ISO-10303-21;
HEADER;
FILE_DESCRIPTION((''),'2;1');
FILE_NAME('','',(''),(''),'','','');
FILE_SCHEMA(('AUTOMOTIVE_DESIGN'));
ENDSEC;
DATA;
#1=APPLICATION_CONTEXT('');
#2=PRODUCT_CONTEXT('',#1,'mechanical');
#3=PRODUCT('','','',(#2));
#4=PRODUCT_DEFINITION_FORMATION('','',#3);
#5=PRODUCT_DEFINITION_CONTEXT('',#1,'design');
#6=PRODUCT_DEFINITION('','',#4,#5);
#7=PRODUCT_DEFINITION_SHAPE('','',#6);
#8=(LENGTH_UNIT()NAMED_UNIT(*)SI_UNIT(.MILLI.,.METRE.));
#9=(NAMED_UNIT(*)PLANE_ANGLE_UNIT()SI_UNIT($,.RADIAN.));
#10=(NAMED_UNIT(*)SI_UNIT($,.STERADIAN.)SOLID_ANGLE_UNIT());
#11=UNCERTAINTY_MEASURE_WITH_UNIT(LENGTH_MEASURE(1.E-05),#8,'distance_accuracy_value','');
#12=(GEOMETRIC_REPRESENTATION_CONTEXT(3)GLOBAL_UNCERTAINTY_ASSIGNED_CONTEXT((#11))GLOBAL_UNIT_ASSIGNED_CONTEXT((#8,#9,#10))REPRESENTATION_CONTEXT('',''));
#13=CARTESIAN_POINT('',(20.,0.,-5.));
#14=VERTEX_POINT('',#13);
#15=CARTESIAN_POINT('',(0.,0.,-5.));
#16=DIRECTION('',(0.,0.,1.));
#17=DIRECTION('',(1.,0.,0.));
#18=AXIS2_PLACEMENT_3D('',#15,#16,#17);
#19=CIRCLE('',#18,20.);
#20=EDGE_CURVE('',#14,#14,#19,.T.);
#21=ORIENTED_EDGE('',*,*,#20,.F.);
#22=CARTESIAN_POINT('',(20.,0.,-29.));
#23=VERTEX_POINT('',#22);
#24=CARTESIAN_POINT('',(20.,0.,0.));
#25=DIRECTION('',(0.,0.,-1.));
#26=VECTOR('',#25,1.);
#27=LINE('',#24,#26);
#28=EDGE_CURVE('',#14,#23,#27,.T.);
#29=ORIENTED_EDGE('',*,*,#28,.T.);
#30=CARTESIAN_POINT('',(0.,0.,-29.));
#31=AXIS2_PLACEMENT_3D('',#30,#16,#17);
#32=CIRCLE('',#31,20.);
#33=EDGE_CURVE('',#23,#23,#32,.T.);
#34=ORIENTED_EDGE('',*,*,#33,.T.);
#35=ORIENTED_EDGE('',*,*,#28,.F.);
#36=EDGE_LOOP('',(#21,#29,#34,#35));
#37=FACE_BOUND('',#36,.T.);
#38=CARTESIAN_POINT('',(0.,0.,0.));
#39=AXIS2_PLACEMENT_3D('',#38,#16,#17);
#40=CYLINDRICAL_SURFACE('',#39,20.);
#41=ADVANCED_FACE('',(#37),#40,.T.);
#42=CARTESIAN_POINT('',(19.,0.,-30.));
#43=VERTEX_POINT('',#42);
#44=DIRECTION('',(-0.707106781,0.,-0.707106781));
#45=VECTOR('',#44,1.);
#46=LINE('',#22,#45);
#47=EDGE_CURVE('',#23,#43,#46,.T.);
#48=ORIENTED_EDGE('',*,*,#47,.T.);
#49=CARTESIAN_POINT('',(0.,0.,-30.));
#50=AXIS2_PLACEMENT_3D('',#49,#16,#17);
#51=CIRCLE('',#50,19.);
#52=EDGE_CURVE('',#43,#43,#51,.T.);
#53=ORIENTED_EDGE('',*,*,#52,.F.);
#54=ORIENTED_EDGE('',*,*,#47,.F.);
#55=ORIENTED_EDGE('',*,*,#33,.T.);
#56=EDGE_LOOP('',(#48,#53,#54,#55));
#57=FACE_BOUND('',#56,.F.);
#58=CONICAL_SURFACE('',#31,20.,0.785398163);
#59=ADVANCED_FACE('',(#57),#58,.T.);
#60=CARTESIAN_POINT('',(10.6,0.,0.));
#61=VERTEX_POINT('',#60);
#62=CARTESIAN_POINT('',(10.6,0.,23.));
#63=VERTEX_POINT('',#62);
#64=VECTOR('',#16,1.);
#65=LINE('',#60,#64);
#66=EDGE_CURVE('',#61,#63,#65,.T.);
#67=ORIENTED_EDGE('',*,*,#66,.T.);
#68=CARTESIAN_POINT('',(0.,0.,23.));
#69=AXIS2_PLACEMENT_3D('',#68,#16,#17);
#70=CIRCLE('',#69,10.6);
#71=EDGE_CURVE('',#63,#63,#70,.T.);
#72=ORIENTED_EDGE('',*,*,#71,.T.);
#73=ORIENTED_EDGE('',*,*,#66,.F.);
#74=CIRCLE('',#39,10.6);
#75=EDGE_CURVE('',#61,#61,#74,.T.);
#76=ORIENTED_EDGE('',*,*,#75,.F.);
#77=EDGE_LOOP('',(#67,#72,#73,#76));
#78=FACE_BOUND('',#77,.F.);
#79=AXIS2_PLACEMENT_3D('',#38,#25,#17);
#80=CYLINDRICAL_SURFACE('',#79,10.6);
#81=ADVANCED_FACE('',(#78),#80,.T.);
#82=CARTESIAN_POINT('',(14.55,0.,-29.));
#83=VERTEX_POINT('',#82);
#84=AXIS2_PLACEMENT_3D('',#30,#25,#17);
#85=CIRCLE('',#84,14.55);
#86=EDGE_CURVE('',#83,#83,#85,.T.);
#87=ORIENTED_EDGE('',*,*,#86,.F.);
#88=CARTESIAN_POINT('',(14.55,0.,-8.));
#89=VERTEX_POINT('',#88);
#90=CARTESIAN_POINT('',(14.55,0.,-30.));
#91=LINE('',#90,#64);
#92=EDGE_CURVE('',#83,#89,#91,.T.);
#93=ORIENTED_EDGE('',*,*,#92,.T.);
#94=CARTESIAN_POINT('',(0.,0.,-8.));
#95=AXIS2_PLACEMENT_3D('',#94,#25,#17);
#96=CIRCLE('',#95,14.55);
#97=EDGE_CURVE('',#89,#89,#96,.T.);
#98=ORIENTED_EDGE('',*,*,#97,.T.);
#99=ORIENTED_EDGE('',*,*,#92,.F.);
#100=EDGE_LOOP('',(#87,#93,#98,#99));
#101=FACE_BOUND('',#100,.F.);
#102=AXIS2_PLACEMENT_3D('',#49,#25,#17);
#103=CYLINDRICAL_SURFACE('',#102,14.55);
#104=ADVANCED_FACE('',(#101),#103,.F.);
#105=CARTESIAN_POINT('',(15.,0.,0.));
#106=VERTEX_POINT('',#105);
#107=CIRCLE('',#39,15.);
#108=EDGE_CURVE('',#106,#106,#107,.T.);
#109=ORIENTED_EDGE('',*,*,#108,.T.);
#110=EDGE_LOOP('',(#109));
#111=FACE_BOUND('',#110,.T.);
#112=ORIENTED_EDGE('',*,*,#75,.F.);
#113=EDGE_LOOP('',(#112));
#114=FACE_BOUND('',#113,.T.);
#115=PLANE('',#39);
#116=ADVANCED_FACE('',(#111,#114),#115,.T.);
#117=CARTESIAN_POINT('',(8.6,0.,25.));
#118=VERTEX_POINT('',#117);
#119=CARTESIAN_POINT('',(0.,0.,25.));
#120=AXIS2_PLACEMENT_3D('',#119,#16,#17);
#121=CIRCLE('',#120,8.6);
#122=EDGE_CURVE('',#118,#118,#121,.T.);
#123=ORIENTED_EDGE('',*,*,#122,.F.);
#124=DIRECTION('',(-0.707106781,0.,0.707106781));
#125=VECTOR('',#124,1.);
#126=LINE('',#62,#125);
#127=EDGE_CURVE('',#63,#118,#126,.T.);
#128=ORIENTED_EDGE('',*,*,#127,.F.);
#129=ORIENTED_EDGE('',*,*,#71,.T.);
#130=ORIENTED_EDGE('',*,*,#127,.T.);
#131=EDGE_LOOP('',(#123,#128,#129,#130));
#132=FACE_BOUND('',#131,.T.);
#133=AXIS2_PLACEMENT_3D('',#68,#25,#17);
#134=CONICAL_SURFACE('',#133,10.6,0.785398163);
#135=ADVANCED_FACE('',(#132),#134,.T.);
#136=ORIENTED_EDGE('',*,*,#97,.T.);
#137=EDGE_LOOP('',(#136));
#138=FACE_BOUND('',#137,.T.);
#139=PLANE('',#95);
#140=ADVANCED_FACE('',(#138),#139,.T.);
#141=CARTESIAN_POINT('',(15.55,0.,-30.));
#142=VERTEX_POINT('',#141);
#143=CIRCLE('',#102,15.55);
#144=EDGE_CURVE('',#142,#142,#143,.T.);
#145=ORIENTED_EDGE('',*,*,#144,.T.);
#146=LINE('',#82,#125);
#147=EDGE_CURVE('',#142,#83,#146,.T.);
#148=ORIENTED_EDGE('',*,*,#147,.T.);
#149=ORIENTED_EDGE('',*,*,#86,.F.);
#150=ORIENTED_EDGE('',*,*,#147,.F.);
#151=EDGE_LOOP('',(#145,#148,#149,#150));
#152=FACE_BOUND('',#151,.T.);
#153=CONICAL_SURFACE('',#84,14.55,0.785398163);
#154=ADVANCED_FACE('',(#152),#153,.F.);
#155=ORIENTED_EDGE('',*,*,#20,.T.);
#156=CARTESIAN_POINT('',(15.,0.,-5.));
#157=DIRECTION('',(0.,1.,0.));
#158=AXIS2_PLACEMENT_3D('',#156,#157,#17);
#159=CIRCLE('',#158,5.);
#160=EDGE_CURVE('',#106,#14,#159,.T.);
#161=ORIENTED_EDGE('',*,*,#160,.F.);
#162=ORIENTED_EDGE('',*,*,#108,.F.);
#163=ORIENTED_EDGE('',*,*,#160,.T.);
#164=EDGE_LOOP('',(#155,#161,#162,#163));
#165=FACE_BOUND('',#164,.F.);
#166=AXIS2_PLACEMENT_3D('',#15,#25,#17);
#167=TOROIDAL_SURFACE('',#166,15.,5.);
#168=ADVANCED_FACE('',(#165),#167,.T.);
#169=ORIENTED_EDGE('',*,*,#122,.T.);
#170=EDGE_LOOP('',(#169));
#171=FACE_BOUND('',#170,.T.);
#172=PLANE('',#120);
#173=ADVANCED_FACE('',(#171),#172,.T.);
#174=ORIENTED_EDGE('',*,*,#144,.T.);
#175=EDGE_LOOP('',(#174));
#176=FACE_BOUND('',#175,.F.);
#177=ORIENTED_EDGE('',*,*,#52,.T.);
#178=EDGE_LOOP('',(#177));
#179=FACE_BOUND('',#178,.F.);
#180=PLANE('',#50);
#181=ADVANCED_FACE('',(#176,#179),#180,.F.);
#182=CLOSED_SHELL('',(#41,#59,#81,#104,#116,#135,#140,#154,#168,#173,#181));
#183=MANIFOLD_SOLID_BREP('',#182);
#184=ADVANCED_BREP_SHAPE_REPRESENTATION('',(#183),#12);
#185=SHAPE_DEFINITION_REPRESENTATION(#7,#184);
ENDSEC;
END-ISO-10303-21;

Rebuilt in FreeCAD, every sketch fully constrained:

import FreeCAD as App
import Part
import Sketcher

V = App.Vector
Q = App.Units.Quantity


def edges_at(feature, points):
    """Names of the edges that pass closest to the given points."""
    edges = feature.Shape.Edges
    near = lambda p: min(range(len(edges)), key=lambda i: edges[i].distToShape(Part.Vertex(*p))[0])
    return sorted({f"Edge{near(p) + 1}" for p in points})

doc = App.newDocument("Part")
body = doc.addObject("PartDesign::Body", "Body")

# Sketch on XY plane
sketch1 = doc.addObject("Sketcher::SketchObject", "Sketch")
body.addObject(sketch1)
sketch1.AttachmentSupport = (doc.XY_Plane, [""])
sketch1.MapMode = "FlatFace"
sketch1.addGeometry(Part.Circle(V(0, 0, 0), V(0, 0, 1), 20), False)
sketch1.addConstraint(Sketcher.Constraint("Coincident", 0, 3, -1, 1))
sketch1.addConstraint(Sketcher.Constraint("Diameter", 0, Q("40 mm")))
pad1 = doc.addObject("PartDesign::Pad", "Pad")
body.addObject(pad1)
pad1.Profile = sketch1
pad1.Length = 30
pad1.Reversed = True

# Sketch on XY plane
sketch2 = doc.addObject("Sketcher::SketchObject", "Sketch001")
body.addObject(sketch2)
sketch2.AttachmentSupport = (doc.XY_Plane, [""])
sketch2.MapMode = "FlatFace"
sketch2.addGeometry(Part.Circle(V(0, 0, 0), V(0, 0, 1), 10.6), False)
sketch2.addConstraint(Sketcher.Constraint("Coincident", 0, 3, -1, 1))
sketch2.addConstraint(Sketcher.Constraint("Diameter", 0, Q("21.2 mm")))
pad2 = doc.addObject("PartDesign::Pad", "Pad001")
body.addObject(pad2)
pad2.Profile = sketch2
pad2.Length = 25

# Sketch on XY plane
sketch3 = doc.addObject("Sketcher::SketchObject", "Sketch002")
body.addObject(sketch3)
sketch3.AttachmentSupport = (doc.XY_Plane, [""])
sketch3.MapMode = "FlatFace"
sketch3.AttachmentOffset = App.Placement(V(0, 0, -30), App.Rotation())
sketch3.addGeometry(Part.Circle(V(0, 0, 0), V(0, 0, 1), 14.55), False)
sketch3.addConstraint(Sketcher.Constraint("Coincident", 0, 3, -1, 1))
sketch3.addConstraint(Sketcher.Constraint("Diameter", 0, Q("29.1 mm")))
pocket1 = doc.addObject("PartDesign::Pocket", "Pocket")
body.addObject(pocket1)
pocket1.Profile = sketch3
pocket1.Length = 22
pocket1.Reversed = True
doc.recompute()

chamfer = doc.addObject("PartDesign::Chamfer", "Chamfer")
body.addObject(chamfer)
chamfer.Base = (pocket1, edges_at(pocket1, [(-10.6, 0, 25)]))
chamfer.Size = 2
doc.recompute()

fillet = doc.addObject("PartDesign::Fillet", "Fillet")
body.addObject(fillet)
fillet.Base = (chamfer, edges_at(chamfer, [(-20, 0, 0)]))
fillet.Radius = 5
doc.recompute()

chamfer2 = doc.addObject("PartDesign::Chamfer", "Chamfer001")
body.addObject(chamfer2)
chamfer2.Base = (fillet, edges_at(fillet, [(-20, 0, -30), (-14.55, 0, -30)]))
chamfer2.Size = 1

doc.recompute()
